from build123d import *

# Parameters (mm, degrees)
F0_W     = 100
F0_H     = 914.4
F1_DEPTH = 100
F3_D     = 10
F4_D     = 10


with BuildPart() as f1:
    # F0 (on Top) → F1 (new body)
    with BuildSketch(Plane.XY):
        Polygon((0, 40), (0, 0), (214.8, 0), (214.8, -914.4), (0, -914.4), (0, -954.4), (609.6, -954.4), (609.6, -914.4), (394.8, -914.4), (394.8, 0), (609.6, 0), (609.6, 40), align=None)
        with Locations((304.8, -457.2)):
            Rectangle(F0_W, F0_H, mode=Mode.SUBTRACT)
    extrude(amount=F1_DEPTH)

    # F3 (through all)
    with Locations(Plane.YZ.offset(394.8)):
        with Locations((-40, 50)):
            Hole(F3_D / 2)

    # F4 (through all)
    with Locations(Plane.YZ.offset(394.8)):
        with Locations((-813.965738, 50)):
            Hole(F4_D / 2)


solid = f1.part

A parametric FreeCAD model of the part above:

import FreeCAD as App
import Part
import Sketcher
from FreeCAD import Vector


def add_polygon(sketch, points):
    """Adds a closed chain of lines whose ends are joined by coincident constraints."""
    first, n = sketch.GeometryCount, len(points)
    for a, b in zip(points, points[1:] + points[:1]):
        sketch.addGeometry(Part.LineSegment(App.Vector(*a, 0), App.Vector(*b, 0)), False)
    for i in range(n):
        sketch.addConstraint(Sketcher.Constraint("Coincident", first + i, 2, first + (i + 1) % n, 1))

doc = App.newDocument("Part")
params = doc.addObject("Spreadsheet::Sheet", "Params")
for row, (alias, value) in enumerate([
    ("sketch1_width", "100 mm"),
    ("sketch1_height", "40 mm"),
    ("sketch1_width2", "214.8 mm"),
    ("sketch1_width3", "609.6 mm"),
    ("sketch1_height2", "914.4 mm"),
    ("pad1_length", "100 mm"),
    ("sketch2_diameter", "10 mm"),
    ("hole_diameter", "10 mm"),
    ("sketch3_diameter", "10 mm"),
    ("hole2_diameter", "10 mm"),
], start=1):
    params.set(f"A{row}", alias)
    params.set(f"B{row}", "=" + value)
    params.setAlias(f"B{row}", alias)

body = doc.addObject("PartDesign::Body", "Body")

sketch1 = body.newObject("Sketcher::SketchObject", "Sketch")
sketch1.AttachmentSupport = (doc.getObject("XY_Plane"), [""])
sketch1.MapMode = "FlatFace"
add_polygon(sketch1, [(0, 40), (0, 0), (215, 0), (215, -914), (0, -914), (0, -954), (610, -954), (610, -914), (395, -914), (395, 0), (610, 0), (610, 40)])
add_polygon(sketch1, [(355, -914), (255, -914), (255, 0), (355, 0)])
sketch1.addConstraint(Sketcher.Constraint("Vertical", 0))
sketch1.addConstraint(Sketcher.Constraint("Horizontal", 1))
sketch1.addConstraint(Sketcher.Constraint("Vertical", 2))
sketch1.addConstraint(Sketcher.Constraint("Horizontal", 3))
sketch1.addConstraint(Sketcher.Constraint("Vertical", 4))
sketch1.addConstraint(Sketcher.Constraint("Horizontal", 5))
sketch1.addConstraint(Sketcher.Constraint("Vertical", 6))
sketch1.addConstraint(Sketcher.Constraint("Horizontal", 7))
sketch1.addConstraint(Sketcher.Constraint("Vertical", 8))
sketch1.addConstraint(Sketcher.Constraint("Horizontal", 9))
sketch1.addConstraint(Sketcher.Constraint("Vertical", 10))
sketch1.addConstraint(Sketcher.Constraint("Horizontal", 11))
sketch1.addConstraint(Sketcher.Constraint("Horizontal", 12))
sketch1.addConstraint(Sketcher.Constraint("Vertical", 13))
sketch1.addConstraint(Sketcher.Constraint("Horizontal", 14))
sketch1.addConstraint(Sketcher.Constraint("Vertical", 15))
sketch1.addConstraint(Sketcher.Constraint("Coincident", 0, 2, -1, 1))
sketch1.addConstraint(Sketcher.Constraint("PointOnObject", 3, 2, -2))
sketch1.addConstraint(Sketcher.Constraint("PointOnObject", 8, 2, -1))
sketch1.addConstraint(Sketcher.Constraint("PointOnObject", 13, 2, -1))
sketch1.addConstraint(Sketcher.Constraint("Horizontal", 3, 2, 6, 2))
sketch1.addConstraint(Sketcher.Constraint("Horizontal", 7, 2, 12, 2))
sketch1.addConstraint(Sketcher.Constraint("Vertical", 6, 2, 9, 2))
sketch1.addConstraint(Sketcher.Constraint("Equal", 3, 7))
sketch1.addConstraint(Sketcher.Constraint("Equal", 0, 4))
sketch1.addConstraint(Sketcher.Constraint("DistanceX", 12, 2, 12, 1, 100.0))
sketch1.addConstraint(Sketcher.Constraint("DistanceY", 0, 2, 0, 1, 40.0))
sketch1.addConstraint(Sketcher.Constraint("DistanceX", 1, 1, 1, 2, 214.8))
sketch1.addConstraint(Sketcher.Constraint("DistanceX", 5, 1, 5, 2, 609.6))
sketch1.addConstraint(Sketcher.Constraint("DistanceY", 2, 2, 2, 1, 914.4))
sketch1.addConstraint(Sketcher.Constraint("DistanceX", 2, 2, 12, 2, 40.0))
sketch1.setExpression("Constraints[41]", "Params.sketch1_width")
sketch1.setExpression("Constraints[42]", "Params.sketch1_height")
sketch1.setExpression("Constraints[43]", "Params.sketch1_width2")
sketch1.setExpression("Constraints[44]", "Params.sketch1_width3")
sketch1.setExpression("Constraints[45]", "Params.sketch1_height2")
pad1 = body.newObject("PartDesign::Pad", "Pad")
pad1.Profile = sketch1
pad1.setExpression("Length", "Params.pad1_length")

sketch2 = body.newObject("Sketcher::SketchObject", "Sketch001")
sketch2.AttachmentSupport = (doc.getObject("YZ_Plane"), [""])
sketch2.MapMode = "FlatFace"
sketch2.AttachmentOffset = App.Placement(Vector(0, 0, 394.8), App.Rotation())
sketch2.addGeometry(Part.Circle(Vector(-40, 50, 0), Vector(0, 0, 1), 5), False)
sketch2.addConstraint(Sketcher.Constraint("Diameter", 0, 10.0))
sketch2.addConstraint(Sketcher.Constraint("DistanceX", 0, 3, -1, 1, 40.0))
sketch2.addConstraint(Sketcher.Constraint("DistanceY", -1, 1, 0, 3, 50.0))
sketch2.setExpression("Constraints[0]", "Params.sketch2_diameter")
doc.recompute()
hole = body.newObject("PartDesign::Hole", "Hole")
hole.Profile = sketch2
hole.ThreadType = "None"
hole.setExpression("Diameter", "Params.hole_diameter")
hole.DepthType = "ThroughAll"

sketch3 = body.newObject("Sketcher::SketchObject", "Sketch002")
sketch3.AttachmentSupport = (doc.getObject("YZ_Plane"), [""])
sketch3.MapMode = "FlatFace"
sketch3.AttachmentOffset = App.Placement(Vector(0, 0, 394.8), App.Rotation())
sketch3.addGeometry(Part.Circle(Vector(-814, 50, 0), Vector(0, 0, 1), 5), False)
sketch3.addConstraint(Sketcher.Constraint("Diameter", 0, 10.0))
sketch3.addConstraint(Sketcher.Constraint("DistanceY", -1, 1, 0, 3, 50.0))
sketch3.addConstraint(Sketcher.Constraint("DistanceX", 0, 3, -1, 1, 813.965738))
sketch3.setExpression("Constraints[0]", "Params.sketch3_diameter")
doc.recompute()
hole2 = body.newObject("PartDesign::Hole", "Hole001")
hole2.Profile = sketch3
hole2.ThreadType = "None"
hole2.setExpression("Diameter", "Params.hole2_diameter")
hole2.DepthType = "ThroughAll"

doc.recompute()
